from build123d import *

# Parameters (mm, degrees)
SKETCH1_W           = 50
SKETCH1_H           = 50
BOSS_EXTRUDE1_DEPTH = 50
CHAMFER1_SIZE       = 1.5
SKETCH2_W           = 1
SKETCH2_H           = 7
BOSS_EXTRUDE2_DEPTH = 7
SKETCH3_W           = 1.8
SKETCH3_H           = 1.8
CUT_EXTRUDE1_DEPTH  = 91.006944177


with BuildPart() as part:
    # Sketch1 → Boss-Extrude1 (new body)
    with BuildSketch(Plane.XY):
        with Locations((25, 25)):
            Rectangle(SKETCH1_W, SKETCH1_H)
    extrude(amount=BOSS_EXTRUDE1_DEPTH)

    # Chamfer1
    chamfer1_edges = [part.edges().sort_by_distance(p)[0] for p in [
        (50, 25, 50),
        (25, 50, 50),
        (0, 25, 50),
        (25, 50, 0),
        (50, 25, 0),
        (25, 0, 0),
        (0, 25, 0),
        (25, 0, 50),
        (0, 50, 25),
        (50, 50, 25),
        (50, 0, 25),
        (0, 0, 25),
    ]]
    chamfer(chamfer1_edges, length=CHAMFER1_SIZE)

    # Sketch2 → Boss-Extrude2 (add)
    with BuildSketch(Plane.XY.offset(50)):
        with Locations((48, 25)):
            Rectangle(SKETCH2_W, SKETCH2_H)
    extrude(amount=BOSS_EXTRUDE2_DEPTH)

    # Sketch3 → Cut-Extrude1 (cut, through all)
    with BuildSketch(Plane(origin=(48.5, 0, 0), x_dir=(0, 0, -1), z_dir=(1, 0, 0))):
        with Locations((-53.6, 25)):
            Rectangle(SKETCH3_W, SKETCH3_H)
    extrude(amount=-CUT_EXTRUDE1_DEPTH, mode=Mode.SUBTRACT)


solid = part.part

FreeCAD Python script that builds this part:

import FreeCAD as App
import Part
import Sketcher
Q = App.Units.Quantity

doc = App.newDocument("Part")
params = doc.addObject("Spreadsheet::Sheet", "Params")
for row, (alias, value) in enumerate([
    ("sketch1_width", "50 mm"),
    ("pad1_length", "50 mm"),
    ("chamfer_size", "1.5 mm"),
    ("sketch2_width", "1 mm"),
    ("sketch2_height", "7 mm"),
    ("pad2_length", "7 mm"),
    ("sketch3_width", "1.8 mm"),
], start=1):
    params.set(f"A{row}", alias)
    params.set(f"B{row}", "=" + value)
    params.setAlias(f"B{row}", alias)

body = doc.addObject("PartDesign::Body", "Body")

sketch1 = body.newObject("Sketcher::SketchObject", "Sketch")
sketch1.AttachmentSupport = (doc.getObject("XY_Plane"), [""])
sketch1.MapMode = "FlatFace"
sketch1.addGeometry([
    Part.LineSegment(App.Vector(0, 50, 0), App.Vector(0, 0, 0)),
    Part.LineSegment(App.Vector(0, 0, 0), App.Vector(50, 0, 0)),
    Part.LineSegment(App.Vector(50, 0, 0), App.Vector(50, 50, 0)),
    Part.LineSegment(App.Vector(50, 50, 0), App.Vector(0, 50, 0)),
], False)
sketch1.addConstraint([
    Sketcher.Constraint("Coincident", 0, 2, 1, 1),
    Sketcher.Constraint("Coincident", 1, 2, 2, 1),
    Sketcher.Constraint("Coincident", 2, 2, 3, 1),
    Sketcher.Constraint("Coincident", 3, 2, 0, 1),
    Sketcher.Constraint("Vertical", 0),
    Sketcher.Constraint("Horizontal", 1),
    Sketcher.Constraint("Vertical", 2),
    Sketcher.Constraint("Horizontal", 3),
    Sketcher.Constraint("Coincident", 0, 2, -1, 1),
    Sketcher.Constraint("Equal", 3, 0),
    Sketcher.Constraint("DistanceX", 1, 1, 1, 2, Q("50 mm")),
])
sketch1.setExpression("Constraints[10]", "Params.sketch1_width")
pad1 = body.newObject("PartDesign::Pad", "Pad")
pad1.Profile = sketch1
pad1.setExpression("Length", "Params.pad1_length")
doc.recompute()

chamfer = body.newObject("PartDesign::Chamfer", "Chamfer")
chamfer.Base = (pad1, ["Edge1"])
chamfer.UseAllEdges = True
chamfer.setExpression("Size", "Params.chamfer_size")

sketch2 = body.newObject("Sketcher::SketchObject", "Sketch001")
sketch2.AttachmentSupport = (doc.getObject("XY_Plane"), [""])
sketch2.MapMode = "FlatFace"
sketch2.AttachmentOffset = App.Placement(App.Vector(0, 0, 50), App.Rotation())
sketch2.addGeometry([
    Part.LineSegment(App.Vector(47.5, 28.5, 0), App.Vector(47.5, 21.5, 0)),
    Part.LineSegment(App.Vector(47.5, 21.5, 0), App.Vector(48.5, 21.5, 0)),
    Part.LineSegment(App.Vector(48.5, 21.5, 0), App.Vector(48.5, 28.5, 0)),
    Part.LineSegment(App.Vector(48.5, 28.5, 0), App.Vector(47.5, 28.5, 0)),
], False)
sketch2.addConstraint([
    Sketcher.Constraint("Coincident", 0, 2, 1, 1),
    Sketcher.Constraint("Coincident", 1, 2, 2, 1),
    Sketcher.Constraint("Coincident", 2, 2, 3, 1),
    Sketcher.Constraint("Coincident", 3, 2, 0, 1),
    Sketcher.Constraint("Vertical", 0),
    Sketcher.Constraint("Horizontal", 1),
    Sketcher.Constraint("Vertical", 2),
    Sketcher.Constraint("Horizontal", 3),
    Sketcher.Constraint("DistanceX", 1, 1, 1, 2, Q("1 mm")),
    Sketcher.Constraint("DistanceY", 0, 2, 0, 1, Q("7 mm")),
    Sketcher.Constraint("DistanceX", -1, 1, 0, 2, Q("47.5 mm")),
    Sketcher.Constraint("DistanceY", -1, 1, 0, 2, Q("21.5 mm")),
])
sketch2.setExpression("Constraints[8]", "Params.sketch2_width")
sketch2.setExpression("Constraints[9]", "Params.sketch2_height")
pad2 = body.newObject("PartDesign::Pad", "Pad001")
pad2.Profile = sketch2
pad2.setExpression("Length", "Params.pad2_length")

sketch3 = body.newObject("Sketcher::SketchObject", "Sketch002")
sketch3.AttachmentSupport = (doc.getObject("YZ_Plane"), [""])
sketch3.MapMode = "FlatFace"
sketch3.AttachmentOffset = App.Placement(App.Vector(0, 0, 48.5), App.Rotation())
sketch3.addGeometry([
    Part.LineSegment(App.Vector(25.9, 54.5, 0), App.Vector(24.1, 54.5, 0)),
    Part.LineSegment(App.Vector(24.1, 54.5, 0), App.Vector(24.1, 52.7, 0)),
    Part.LineSegment(App.Vector(24.1, 52.7, 0), App.Vector(25.9, 52.7, 0)),
    Part.LineSegment(App.Vector(25.9, 52.7, 0), App.Vector(25.9, 54.5, 0)),
], False)
sketch3.addConstraint([
    Sketcher.Constraint("Coincident", 0, 2, 1, 1),
    Sketcher.Constraint("Coincident", 1, 2, 2, 1),
    Sketcher.Constraint("Coincident", 2, 2, 3, 1),
    Sketcher.Constraint("Coincident", 3, 2, 0, 1),
    Sketcher.Constraint("Horizontal", 0),
    Sketcher.Constraint("Vertical", 1),
    Sketcher.Constraint("Horizontal", 2),
    Sketcher.Constraint("Vertical", 3),
    Sketcher.Constraint("Equal", 2, 1),
    Sketcher.Constraint("DistanceX", 0, 2, 0, 1, Q("1.8 mm")),
    Sketcher.Constraint("DistanceX", -1, 1, 0, 2, Q("24.1 mm")),
    Sketcher.Constraint("DistanceY", -1, 1, 0, 2, Q("54.5 mm")),
])
sketch3.setExpression("Constraints[9]", "Params.sketch3_width")
pocket1 = body.newObject("PartDesign::Pocket", "Pocket")
pocket1.Profile = sketch3
pocket1.Type = "ThroughAll"

doc.recompute()
